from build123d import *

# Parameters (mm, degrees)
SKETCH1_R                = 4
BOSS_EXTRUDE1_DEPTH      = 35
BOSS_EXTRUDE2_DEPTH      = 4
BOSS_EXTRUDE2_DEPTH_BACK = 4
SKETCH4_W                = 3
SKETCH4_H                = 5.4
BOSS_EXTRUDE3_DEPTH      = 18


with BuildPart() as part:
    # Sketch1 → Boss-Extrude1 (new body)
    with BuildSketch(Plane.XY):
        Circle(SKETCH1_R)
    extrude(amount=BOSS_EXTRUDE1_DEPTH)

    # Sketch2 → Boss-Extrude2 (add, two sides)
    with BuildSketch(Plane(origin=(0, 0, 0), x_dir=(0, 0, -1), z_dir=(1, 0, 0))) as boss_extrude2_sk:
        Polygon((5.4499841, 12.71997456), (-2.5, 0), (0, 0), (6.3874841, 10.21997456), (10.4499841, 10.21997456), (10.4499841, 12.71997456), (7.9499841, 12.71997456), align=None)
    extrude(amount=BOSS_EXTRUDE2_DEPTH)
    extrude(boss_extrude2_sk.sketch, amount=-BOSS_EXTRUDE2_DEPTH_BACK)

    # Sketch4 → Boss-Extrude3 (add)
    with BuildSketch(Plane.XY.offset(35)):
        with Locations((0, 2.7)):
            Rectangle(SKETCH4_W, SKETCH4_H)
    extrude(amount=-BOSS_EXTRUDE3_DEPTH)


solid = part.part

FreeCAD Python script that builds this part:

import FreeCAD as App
import Part
import Sketcher

doc = App.newDocument("Part")
body = doc.addObject("PartDesign::Body", "Body")

# Sketch on XY plane
sketch1 = body.newObject("Sketcher::SketchObject", "Sketch")
sketch1.AttachmentSupport = (doc.getObject("XY_Plane"), [""])
sketch1.MapMode = "FlatFace"
sketch1.addGeometry(Part.Circle(App.Vector(0, 0, 0), App.Vector(0, 0, 1), 4), False)
sketch1.addConstraint([
    Sketcher.Constraint("Coincident", 0, 3, -1, 1),
    Sketcher.Constraint("Diameter", 0, 8.0),
])
pad1 = body.newObject("PartDesign::Pad", "Pad")
pad1.Profile = sketch1
pad1.Length = 35

# Sketch on YZ plane
sketch2 = body.newObject("Sketcher::SketchObject", "Sketch001")
sketch2.AttachmentSupport = (doc.getObject("YZ_Plane"), [""])
sketch2.MapMode = "FlatFace"
sketch2.addGeometry([
    Part.LineSegment(App.Vector(12.7, -5.4, 0), App.Vector(0, 2.5, 0)),  # 0
    Part.LineSegment(App.Vector(0, 2.5, 0), App.Vector(0, 0, 0)),  # 1
    Part.LineSegment(App.Vector(0, 0, 0), App.Vector(10.2, -6.4, 0)),  # 2
    Part.LineSegment(App.Vector(10.2, -6.4, 0), App.Vector(10.2, -10.4, 0)),  # 3
    Part.LineSegment(App.Vector(10.2, -10.4, 0), App.Vector(12.7, -10.4, 0)),  # 4
    Part.LineSegment(App.Vector(12.7, -10.4, 0), App.Vector(12.7, -5.4, 0)),  # 5
], False)
sketch2.addConstraint([
    Sketcher.Constraint("Coincident", 0, 2, 1, 1),
    Sketcher.Constraint("Coincident", 1, 2, 2, 1),
    Sketcher.Constraint("Coincident", 2, 2, 3, 1),
    Sketcher.Constraint("Coincident", 3, 2, 4, 1),
    Sketcher.Constraint("Coincident", 4, 2, 5, 1),
    Sketcher.Constraint("Coincident", 5, 2, 0, 1),
    Sketcher.Constraint("Vertical", 1),
    Sketcher.Constraint("Vertical", 3),
    Sketcher.Constraint("Horizontal", 4),
    Sketcher.Constraint("Vertical", 5),
    Sketcher.Constraint("Coincident", 1, 2, -1, 1),
    Sketcher.Constraint("Parallel", 0, 2),
    Sketcher.Constraint("Equal", 4, 1),
    Sketcher.Constraint("DistanceY", 5, 1, 5, 2, 5.0),
    Sketcher.Constraint("Distance", 0, 15.0),
    Sketcher.Constraint("DistanceX", 4, 1, 4, 2, 2.5),
    Sketcher.Constraint("DistanceY", 3, 2, 3, 1, 4.0625),
])
pad2 = body.newObject("PartDesign::Pad", "Pad001")
pad2.Profile = sketch2
pad2.Type = "TwoLengths"
pad2.Length = 4
pad2.Length2 = 4

# Sketch on XY plane
sketch3 = body.newObject("Sketcher::SketchObject", "Sketch002")
sketch3.AttachmentSupport = (doc.getObject("XY_Plane"), [""])
sketch3.MapMode = "FlatFace"
sketch3.AttachmentOffset = App.Placement(App.Vector(0, 0, 35), App.Rotation())
sketch3.addGeometry([
    Part.LineSegment(App.Vector(-1.5, 5.4, 0), App.Vector(-1.5, 0, 0)),
    Part.LineSegment(App.Vector(-1.5, 0, 0), App.Vector(1.5, 0, 0)),
    Part.LineSegment(App.Vector(1.5, 0, 0), App.Vector(1.5, 5.4, 0)),
    Part.LineSegment(App.Vector(1.5, 5.4, 0), App.Vector(-1.5, 5.4, 0)),
], False)
sketch3.addConstraint([
    Sketcher.Constraint("Coincident", 0, 2, 1, 1),
    Sketcher.Constraint("Coincident", 1, 2, 2, 1),
    Sketcher.Constraint("Coincident", 2, 2, 3, 1),
    Sketcher.Constraint("Coincident", 3, 2, 0, 1),
    Sketcher.Constraint("Vertical", 0),
    Sketcher.Constraint("Horizontal", 1),
    Sketcher.Constraint("Vertical", 2),
    Sketcher.Constraint("Horizontal", 3),
    Sketcher.Constraint("Symmetric", 0, 2, 1, 2, -1, 1),
    Sketcher.Constraint("DistanceX", 1, 1, 1, 2, 3.0),
    Sketcher.Constraint("DistanceY", 0, 2, 0, 1, 5.4),
])
pad3 = body.newObject("PartDesign::Pad", "Pad002")
pad3.Profile = sketch3
pad3.Length = 18
pad3.Reversed = True

doc.recompute()
